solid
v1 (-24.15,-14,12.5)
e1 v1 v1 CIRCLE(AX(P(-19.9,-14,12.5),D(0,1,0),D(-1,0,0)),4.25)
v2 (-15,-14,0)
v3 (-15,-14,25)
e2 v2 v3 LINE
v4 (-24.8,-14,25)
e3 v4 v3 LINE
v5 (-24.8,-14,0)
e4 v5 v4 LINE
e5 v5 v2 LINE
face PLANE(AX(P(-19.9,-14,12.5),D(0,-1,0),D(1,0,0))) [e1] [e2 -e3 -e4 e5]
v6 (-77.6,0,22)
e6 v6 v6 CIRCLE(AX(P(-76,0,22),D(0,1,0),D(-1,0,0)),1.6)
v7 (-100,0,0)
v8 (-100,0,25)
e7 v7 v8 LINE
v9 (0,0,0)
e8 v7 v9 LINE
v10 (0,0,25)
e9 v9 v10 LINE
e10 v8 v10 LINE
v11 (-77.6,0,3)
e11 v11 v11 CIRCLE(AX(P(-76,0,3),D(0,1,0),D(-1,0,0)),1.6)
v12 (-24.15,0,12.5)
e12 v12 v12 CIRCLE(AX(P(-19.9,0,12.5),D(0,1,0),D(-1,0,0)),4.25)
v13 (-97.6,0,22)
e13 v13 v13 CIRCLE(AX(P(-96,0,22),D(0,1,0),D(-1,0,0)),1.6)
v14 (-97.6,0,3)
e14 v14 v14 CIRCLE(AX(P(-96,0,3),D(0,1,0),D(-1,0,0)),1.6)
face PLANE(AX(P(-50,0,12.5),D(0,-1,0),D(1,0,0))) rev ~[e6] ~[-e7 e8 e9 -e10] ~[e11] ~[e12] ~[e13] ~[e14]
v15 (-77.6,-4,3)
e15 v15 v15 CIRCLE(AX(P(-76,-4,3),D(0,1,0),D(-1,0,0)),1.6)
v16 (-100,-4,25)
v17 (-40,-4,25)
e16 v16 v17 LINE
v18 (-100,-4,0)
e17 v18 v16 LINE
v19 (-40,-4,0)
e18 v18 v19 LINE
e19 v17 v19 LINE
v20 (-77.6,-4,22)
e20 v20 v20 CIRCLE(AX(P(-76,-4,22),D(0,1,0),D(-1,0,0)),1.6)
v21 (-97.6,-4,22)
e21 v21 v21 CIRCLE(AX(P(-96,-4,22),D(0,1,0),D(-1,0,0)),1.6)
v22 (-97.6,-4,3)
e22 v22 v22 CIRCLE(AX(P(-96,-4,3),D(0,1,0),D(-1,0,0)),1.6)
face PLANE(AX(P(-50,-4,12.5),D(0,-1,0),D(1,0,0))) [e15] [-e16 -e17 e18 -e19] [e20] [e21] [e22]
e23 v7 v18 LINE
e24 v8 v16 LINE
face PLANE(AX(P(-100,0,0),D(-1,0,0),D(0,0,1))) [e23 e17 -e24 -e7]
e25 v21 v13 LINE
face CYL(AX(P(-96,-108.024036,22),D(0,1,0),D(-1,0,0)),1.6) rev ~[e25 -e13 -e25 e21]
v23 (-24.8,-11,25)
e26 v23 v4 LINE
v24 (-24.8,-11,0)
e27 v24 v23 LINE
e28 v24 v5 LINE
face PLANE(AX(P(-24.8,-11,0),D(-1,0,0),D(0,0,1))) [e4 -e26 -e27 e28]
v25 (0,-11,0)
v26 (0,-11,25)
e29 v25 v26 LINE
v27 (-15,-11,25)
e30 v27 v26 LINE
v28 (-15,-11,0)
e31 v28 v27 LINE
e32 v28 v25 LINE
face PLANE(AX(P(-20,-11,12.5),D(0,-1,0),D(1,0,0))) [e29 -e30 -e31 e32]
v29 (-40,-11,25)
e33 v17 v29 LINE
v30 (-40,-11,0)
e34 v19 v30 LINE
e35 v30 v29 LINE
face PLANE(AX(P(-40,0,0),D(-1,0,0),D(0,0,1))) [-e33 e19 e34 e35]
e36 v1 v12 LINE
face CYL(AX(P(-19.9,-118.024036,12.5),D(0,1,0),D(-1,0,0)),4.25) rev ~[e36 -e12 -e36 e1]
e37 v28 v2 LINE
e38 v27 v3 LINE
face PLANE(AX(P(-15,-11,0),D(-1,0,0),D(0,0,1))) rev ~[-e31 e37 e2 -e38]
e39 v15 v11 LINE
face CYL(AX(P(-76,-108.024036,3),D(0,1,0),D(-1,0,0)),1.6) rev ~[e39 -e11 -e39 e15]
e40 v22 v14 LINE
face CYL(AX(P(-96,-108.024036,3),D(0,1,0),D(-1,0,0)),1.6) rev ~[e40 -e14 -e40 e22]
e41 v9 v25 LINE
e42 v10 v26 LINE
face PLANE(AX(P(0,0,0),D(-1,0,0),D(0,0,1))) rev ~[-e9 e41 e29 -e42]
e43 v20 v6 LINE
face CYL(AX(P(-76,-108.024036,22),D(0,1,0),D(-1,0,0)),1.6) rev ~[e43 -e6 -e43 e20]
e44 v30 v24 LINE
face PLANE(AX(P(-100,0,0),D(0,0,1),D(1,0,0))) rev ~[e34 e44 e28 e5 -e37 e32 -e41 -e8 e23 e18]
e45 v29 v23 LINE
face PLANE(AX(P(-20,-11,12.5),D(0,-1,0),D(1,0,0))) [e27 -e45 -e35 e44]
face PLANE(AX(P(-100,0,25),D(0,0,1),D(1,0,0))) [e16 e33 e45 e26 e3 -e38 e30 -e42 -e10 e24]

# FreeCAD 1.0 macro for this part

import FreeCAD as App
import Part
import Sketcher
from FreeCAD import Vector


def add_polygon(sketch, points):
    """Adds a closed chain of lines whose ends are joined by coincident constraints."""
    first, n = sketch.GeometryCount, len(points)
    for a, b in zip(points, points[1:] + points[:1]):
        sketch.addGeometry(Part.LineSegment(App.Vector(*a, 0), App.Vector(*b, 0)), False)
    for i in range(n):
        sketch.addConstraint(Sketcher.Constraint("Coincident", first + i, 2, first + (i + 1) % n, 1))

doc = App.newDocument("Part")
params = doc.addObject("Spreadsheet::Sheet", "Params")
for row, (alias, value) in enumerate([
    ("sketch1_width", "100 mm"),
    ("sketch1_height", "25 mm"),
    ("pad1_length", "4 mm"),
    ("sketch2_width", "40 mm"),
    ("sketch2_height", "25 mm"),
    ("pad2_length", "11 mm"),
    ("sketch3_height", "25 mm"),
    ("sketch3_width", "9.8 mm"),
    ("pad3_length", "3 mm"),
    ("sketch4_diameter", "3.2 mm"),
    ("hole_diameter", "3.2 mm"),
    ("sketch5_diameter", "3.2 mm"),
    ("hole2_diameter", "3.2 mm"),
    ("sketch6_diameter", "8.5 mm"),
    ("hole3_diameter", "8.5 mm"),
    ("sketch7_diameter", "3.2 mm"),
    ("hole4_diameter", "3.2 mm"),
], start=1):
    params.set(f"A{row}", alias)
    params.set(f"B{row}", "=" + value)
    params.setAlias(f"B{row}", alias)

body = doc.addObject("PartDesign::Body", "Body")

sketch1 = body.newObject("Sketcher::SketchObject", "Sketch")
sketch1.AttachmentSupport = (doc.getObject("XZ_Plane"), [""])
sketch1.MapMode = "FlatFace"
add_polygon(sketch1, [(-100, 25), (-100, 0), (0, 0), (0, 25)])
sketch1.addConstraint(Sketcher.Constraint("Vertical", 0))
sketch1.addConstraint(Sketcher.Constraint("Horizontal", 1))
sketch1.addConstraint(Sketcher.Constraint("Vertical", 2))
sketch1.addConstraint(Sketcher.Constraint("Horizontal", 3))
sketch1.addConstraint(Sketcher.Constraint("Coincident", 1, 2, -1, 1))
sketch1.addConstraint(Sketcher.Constraint("DistanceX", 1, 1, 1, 2, 100.0))
sketch1.addConstraint(Sketcher.Constraint("DistanceY", 0, 2, 0, 1, 25.0))
sketch1.setExpression("Constraints[9]", "Params.sketch1_width")
sketch1.setExpression("Constraints[10]", "Params.sketch1_height")
pad1 = body.newObject("PartDesign::Pad", "Pad")
pad1.Profile = sketch1
pad1.setExpression("Length", "Params.pad1_length")

sketch2 = body.newObject("Sketcher::SketchObject", "Sketch001")
sketch2.AttachmentSupport = (doc.getObject("XZ_Plane"), [""])
sketch2.MapMode = "FlatFace"
add_polygon(sketch2, [(-40, 25), (-40, 0), (0, 0), (0, 25)])
sketch2.addConstraint(Sketcher.Constraint("Vertical", 0))
sketch2.addConstraint(Sketcher.Constraint("Horizontal", 1))
sketch2.addConstraint(Sketcher.Constraint("Vertical", 2))
sketch2.addConstraint(Sketcher.Constraint("Horizontal", 3))
sketch2.addConstraint(Sketcher.Constraint("Coincident", 1, 2, -1, 1))
sketch2.addConstraint(Sketcher.Constraint("DistanceX", 1, 1, 1, 2, 40.0))
sketch2.addConstraint(Sketcher.Constraint("DistanceY", 0, 2, 0, 1, 25.0))
sketch2.setExpression("Constraints[9]", "Params.sketch2_width")
sketch2.setExpression("Constraints[10]", "Params.sketch2_height")
pad2 = body.newObject("PartDesign::Pad", "Pad001")
pad2.Profile = sketch2
pad2.setExpression("Length", "Params.pad2_length")

sketch3 = body.newObject("Sketcher::SketchObject", "Sketch002")
sketch3.AttachmentSupport = (doc.getObject("XZ_Plane"), [""])
sketch3.MapMode = "FlatFace"
sketch3.AttachmentOffset = App.Placement(Vector(0, 0, 11), App.Rotation())
add_polygon(sketch3, [(-25, 25), (-25, 0), (-15, 0), (-15, 25)])
sketch3.addConstraint(Sketcher.Constraint("Vertical", 0))
sketch3.addConstraint(Sketcher.Constraint("Horizontal", 1))
sketch3.addConstraint(Sketcher.Constraint("Vertical", 2))
sketch3.addConstraint(Sketcher.Constraint("Horizontal", 3))
sketch3.addConstraint(Sketcher.Constraint("PointOnObject", 0, 2, -1))
sketch3.addConstraint(Sketcher.Constraint("DistanceY", 0, 2, 0, 1, 25.0))
sketch3.addConstraint(Sketcher.Constraint("DistanceX", 1, 1, 1, 2, 9.8))
sketch3.addConstraint(Sketcher.Constraint("DistanceX", 1, 2, -1, 1, 15.0))
sketch3.setExpression("Constraints[9]", "Params.sketch3_height")
sketch3.setExpression("Constraints[10]", "Params.sketch3_width")
pad3 = body.newObject("PartDesign::Pad", "Pad002")
pad3.Profile = sketch3
pad3.setExpression("Length", "Params.pad3_length")

sketch4 = body.newObject("Sketcher::SketchObject", "Sketch003")
sketch4.AttachmentSupport = (doc.getObject("XZ_Plane"), [""])
sketch4.MapMode = "FlatFace"
sketch4.AttachmentOffset = App.Placement(Vector(0, 0, 4), App.Rotation())
sketch4.addGeometry(Part.Circle(Vector(-96, 22, 0), Vector(0, 0, 1), 1.6), False)
sketch4.addConstraint(Sketcher.Constraint("Diameter", 0, 3.2))
sketch4.addConstraint(Sketcher.Constraint("DistanceX", 0, 3, -1, 1, 96.0))
sketch4.addConstraint(Sketcher.Constraint("DistanceY", -1, 1, 0, 3, 22.0))
sketch4.setExpression("Constraints[0]", "Params.sketch4_diameter")
doc.recompute()
hole = body.newObject("PartDesign::Hole", "Hole")
hole.Profile = sketch4
hole.ThreadType = "None"
hole.setExpression("Diameter", "Params.hole_diameter")
hole.DepthType = "ThroughAll"

sketch5 = body.newObject("Sketcher::SketchObject", "Sketch004")
sketch5.AttachmentSupport = (doc.getObject("XZ_Plane"), [""])
sketch5.MapMode = "FlatFace"
sketch5.AttachmentOffset = App.Placement(Vector(0, 0, 4), App.Rotation())
sketch5.addGeometry(Part.Circle(Vector(-76, 22, 0), Vector(0, 0, 1), 1.6), False)
sketch5.addConstraint(Sketcher.Constraint("Diameter", 0, 3.2))
sketch5.addConstraint(Sketcher.Constraint("DistanceX", 0, 3, -1, 1, 76.0))
sketch5.addConstraint(Sketcher.Constraint("DistanceY", -1, 1, 0, 3, 22.0))
sketch5.setExpression("Constraints[0]", "Params.sketch5_diameter")
doc.recompute()
hole2 = body.newObject("PartDesign::Hole", "Hole001")
hole2.Profile = sketch5
hole2.ThreadType = "None"
hole2.setExpression("Diameter", "Params.hole2_diameter")
hole2.DepthType = "ThroughAll"

sketch6 = body.newObject("Sketcher::SketchObject", "Sketch005")
sketch6.AttachmentSupport = (doc.getObject("XZ_Plane"), [""])
sketch6.MapMode = "FlatFace"
sketch6.AttachmentOffset = App.Placement(Vector(0, 0, 14), App.Rotation())
sketch6.addGeometry(Part.Circle(Vector(-19.9, 12.5, 0), Vector(0, 0, 1), 4.2), False)
sketch6.addConstraint(Sketcher.Constraint("Diameter", 0, 8.5))
sketch6.addConstraint(Sketcher.Constraint("DistanceX", 0, 3, -1, 1, 19.9))
sketch6.addConstraint(Sketcher.Constraint("DistanceY", -1, 1, 0, 3, 12.5))
sketch6.setExpression("Constraints[0]", "Params.sketch6_diameter")
doc.recompute()
hole3 = body.newObject("PartDesign::Hole", "Hole002")
hole3.Profile = sketch6
hole3.ThreadType = "None"
hole3.setExpression("Diameter", "Params.hole3_diameter")
hole3.DepthType = "ThroughAll"

sketch7 = body.newObject("Sketcher::SketchObject", "Sketch006")
sketch7.AttachmentSupport = (doc.getObject("XZ_Plane"), [""])
sketch7.MapMode = "FlatFace"
sketch7.AttachmentOffset = App.Placement(Vector(0, 0, 4), App.Rotation())
sketch7.addGeometry(Part.Circle(Vector(-96, 3, 0), Vector(0, 0, 1), 1.6), False)
sketch7.addGeometry(Part.Circle(Vector(-76, 3, 0), Vector(0, 0, 1), 1.6), False)
sketch7.addConstraint(Sketcher.Constraint("Equal", 0, 1))
sketch7.addConstraint(Sketcher.Constraint("Horizontal", 0, 3, 1, 3))
sketch7.addConstraint(Sketcher.Constraint("Diameter", 0, 3.2))
sketch7.addConstraint(Sketcher.Constraint("DistanceX", 0, 3, -1, 1, 96.0))
sketch7.addConstraint(Sketcher.Constraint("DistanceY", -1, 1, 0, 3, 3.0))
sketch7.addConstraint(Sketcher.Constraint("DistanceX", 1, 3, -1, 1, 76.0))
sketch7.setExpression("Constraints[2]", "Params.sketch7_diameter")
doc.recompute()
hole4 = body.newObject("PartDesign::Hole", "Hole003")
hole4.Profile = sketch7
hole4.ThreadType = "None"
hole4.setExpression("Diameter", "Params.hole4_diameter")
hole4.DepthType = "ThroughAll"

doc.recompute()
